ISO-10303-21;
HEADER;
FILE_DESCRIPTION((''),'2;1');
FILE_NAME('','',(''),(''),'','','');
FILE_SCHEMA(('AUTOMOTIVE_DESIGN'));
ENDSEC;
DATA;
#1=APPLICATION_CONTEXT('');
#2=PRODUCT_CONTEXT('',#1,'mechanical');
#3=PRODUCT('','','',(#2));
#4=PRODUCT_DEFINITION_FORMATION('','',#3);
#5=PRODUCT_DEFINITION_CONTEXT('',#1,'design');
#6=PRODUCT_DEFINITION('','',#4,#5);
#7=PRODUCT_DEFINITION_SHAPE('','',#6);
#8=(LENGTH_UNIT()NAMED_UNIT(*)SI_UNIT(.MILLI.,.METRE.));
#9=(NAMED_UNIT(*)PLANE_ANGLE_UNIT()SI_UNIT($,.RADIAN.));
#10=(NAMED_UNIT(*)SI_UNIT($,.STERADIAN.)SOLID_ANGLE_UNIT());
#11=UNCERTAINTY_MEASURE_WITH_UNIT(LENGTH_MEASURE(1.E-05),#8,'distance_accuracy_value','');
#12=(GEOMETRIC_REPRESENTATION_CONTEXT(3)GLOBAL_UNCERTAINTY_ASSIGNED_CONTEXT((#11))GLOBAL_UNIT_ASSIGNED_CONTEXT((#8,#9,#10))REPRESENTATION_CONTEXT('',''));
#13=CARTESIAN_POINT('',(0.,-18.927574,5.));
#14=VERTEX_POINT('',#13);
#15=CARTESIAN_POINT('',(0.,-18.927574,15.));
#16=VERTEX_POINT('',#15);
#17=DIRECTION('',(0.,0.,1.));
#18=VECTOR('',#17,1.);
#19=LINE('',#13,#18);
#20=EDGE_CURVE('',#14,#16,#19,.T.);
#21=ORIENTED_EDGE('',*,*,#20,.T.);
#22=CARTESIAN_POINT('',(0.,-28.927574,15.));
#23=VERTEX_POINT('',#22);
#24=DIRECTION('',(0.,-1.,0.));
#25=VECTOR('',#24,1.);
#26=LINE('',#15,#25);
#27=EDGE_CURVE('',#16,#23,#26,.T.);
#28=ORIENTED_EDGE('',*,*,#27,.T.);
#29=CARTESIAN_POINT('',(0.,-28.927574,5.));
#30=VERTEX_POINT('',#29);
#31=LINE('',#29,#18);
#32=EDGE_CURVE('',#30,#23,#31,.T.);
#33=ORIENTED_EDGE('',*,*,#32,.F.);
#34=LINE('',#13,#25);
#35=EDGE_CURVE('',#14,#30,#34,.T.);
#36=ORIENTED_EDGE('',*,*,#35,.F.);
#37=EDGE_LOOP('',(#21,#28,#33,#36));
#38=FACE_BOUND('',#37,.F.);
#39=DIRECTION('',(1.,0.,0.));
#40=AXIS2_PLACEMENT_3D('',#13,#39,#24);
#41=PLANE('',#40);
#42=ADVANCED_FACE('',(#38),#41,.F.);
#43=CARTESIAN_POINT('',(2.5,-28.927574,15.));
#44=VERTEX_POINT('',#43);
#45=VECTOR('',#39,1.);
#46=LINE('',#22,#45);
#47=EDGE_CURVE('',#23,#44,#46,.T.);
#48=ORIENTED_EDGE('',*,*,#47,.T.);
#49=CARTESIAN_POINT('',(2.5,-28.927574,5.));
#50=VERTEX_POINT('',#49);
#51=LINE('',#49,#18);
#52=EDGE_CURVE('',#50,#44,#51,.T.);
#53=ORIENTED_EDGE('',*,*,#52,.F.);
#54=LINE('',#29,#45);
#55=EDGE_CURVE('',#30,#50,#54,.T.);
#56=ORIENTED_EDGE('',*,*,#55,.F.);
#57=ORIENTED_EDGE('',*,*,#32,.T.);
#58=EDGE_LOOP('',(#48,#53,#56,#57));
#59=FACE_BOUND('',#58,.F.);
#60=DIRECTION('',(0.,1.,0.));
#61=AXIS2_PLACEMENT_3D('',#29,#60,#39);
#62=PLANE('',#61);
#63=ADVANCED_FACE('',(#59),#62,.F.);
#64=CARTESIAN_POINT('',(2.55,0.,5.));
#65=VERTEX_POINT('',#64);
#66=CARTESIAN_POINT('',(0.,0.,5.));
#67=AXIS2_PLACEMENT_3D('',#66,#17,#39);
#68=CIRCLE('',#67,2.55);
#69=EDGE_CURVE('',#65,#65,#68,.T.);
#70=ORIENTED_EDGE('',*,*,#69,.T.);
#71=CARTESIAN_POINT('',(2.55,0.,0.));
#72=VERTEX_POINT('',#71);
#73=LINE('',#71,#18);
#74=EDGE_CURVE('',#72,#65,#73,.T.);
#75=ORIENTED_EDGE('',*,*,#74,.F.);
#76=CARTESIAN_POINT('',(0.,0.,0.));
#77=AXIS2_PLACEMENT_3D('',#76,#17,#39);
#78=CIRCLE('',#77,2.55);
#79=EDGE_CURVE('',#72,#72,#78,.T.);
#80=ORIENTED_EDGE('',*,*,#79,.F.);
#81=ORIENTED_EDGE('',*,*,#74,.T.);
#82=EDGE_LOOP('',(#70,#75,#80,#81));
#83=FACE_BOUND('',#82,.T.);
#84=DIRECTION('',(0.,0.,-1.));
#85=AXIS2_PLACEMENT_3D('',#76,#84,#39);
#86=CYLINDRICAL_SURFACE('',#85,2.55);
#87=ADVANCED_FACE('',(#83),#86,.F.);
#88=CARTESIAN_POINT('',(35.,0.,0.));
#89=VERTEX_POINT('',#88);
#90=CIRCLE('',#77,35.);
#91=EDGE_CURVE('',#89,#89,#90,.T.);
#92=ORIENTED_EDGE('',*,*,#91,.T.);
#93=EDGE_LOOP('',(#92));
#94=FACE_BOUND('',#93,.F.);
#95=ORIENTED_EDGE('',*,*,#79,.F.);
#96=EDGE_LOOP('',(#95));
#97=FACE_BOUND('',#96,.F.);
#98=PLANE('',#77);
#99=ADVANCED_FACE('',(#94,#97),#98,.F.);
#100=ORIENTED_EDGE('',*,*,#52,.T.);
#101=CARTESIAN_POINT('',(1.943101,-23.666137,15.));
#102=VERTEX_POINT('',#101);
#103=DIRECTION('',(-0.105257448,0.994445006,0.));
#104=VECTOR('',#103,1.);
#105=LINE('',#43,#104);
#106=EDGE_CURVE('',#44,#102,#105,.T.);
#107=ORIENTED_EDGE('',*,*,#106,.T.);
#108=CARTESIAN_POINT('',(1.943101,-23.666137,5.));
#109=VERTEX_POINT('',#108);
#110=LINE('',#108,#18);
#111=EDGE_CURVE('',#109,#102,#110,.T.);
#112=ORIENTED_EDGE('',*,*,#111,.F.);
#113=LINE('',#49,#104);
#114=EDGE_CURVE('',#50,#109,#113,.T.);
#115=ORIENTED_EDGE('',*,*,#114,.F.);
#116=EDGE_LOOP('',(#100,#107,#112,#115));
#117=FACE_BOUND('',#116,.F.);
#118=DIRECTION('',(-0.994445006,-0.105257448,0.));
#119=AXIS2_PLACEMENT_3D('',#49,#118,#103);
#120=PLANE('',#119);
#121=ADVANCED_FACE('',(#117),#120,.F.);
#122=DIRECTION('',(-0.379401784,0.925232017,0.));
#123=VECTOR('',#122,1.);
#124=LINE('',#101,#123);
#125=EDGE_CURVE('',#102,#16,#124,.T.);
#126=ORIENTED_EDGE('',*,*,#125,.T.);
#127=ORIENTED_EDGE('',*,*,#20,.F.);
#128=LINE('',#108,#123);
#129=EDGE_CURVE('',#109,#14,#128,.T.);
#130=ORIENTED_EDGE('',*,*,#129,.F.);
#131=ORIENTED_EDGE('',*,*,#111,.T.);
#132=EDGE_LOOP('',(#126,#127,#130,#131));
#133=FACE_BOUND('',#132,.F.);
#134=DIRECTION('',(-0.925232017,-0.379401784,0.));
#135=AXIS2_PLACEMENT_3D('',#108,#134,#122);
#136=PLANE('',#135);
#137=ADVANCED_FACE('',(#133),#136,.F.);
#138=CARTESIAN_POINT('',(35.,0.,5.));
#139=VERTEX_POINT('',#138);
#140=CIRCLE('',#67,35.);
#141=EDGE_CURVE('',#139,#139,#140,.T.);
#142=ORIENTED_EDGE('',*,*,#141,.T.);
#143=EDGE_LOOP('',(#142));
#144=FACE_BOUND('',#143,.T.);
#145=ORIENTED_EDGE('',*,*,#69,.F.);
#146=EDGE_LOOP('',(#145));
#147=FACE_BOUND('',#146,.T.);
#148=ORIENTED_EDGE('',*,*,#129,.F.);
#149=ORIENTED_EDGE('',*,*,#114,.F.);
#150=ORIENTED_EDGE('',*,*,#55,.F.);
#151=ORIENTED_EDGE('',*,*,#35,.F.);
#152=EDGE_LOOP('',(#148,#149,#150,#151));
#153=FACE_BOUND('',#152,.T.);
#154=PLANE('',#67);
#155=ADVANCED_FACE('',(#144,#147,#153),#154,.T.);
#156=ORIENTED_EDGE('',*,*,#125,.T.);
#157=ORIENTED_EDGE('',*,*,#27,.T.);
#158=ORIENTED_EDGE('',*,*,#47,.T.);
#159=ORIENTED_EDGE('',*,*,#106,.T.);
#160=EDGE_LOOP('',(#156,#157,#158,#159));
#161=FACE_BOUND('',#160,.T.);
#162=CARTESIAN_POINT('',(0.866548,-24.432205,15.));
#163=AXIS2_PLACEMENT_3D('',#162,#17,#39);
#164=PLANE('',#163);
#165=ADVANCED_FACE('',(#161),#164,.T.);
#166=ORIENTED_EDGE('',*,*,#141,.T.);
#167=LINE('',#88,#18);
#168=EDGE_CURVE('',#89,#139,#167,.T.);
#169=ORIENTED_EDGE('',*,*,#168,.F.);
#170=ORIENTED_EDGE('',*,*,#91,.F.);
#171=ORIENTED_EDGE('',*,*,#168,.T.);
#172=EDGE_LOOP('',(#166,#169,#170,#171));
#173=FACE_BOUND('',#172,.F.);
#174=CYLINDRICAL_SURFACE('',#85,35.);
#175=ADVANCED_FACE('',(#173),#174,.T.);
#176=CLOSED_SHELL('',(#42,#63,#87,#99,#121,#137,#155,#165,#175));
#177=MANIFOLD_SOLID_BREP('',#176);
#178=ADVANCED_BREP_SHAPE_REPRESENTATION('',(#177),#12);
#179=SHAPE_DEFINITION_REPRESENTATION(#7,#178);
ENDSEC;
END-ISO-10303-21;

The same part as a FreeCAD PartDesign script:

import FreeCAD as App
import Part
import Sketcher
from FreeCAD import Vector


def add_polygon(sketch, points):
    """Adds a closed chain of lines whose ends are joined by coincident constraints."""
    first, n = sketch.GeometryCount, len(points)
    for a, b in zip(points, points[1:] + points[:1]):
        sketch.addGeometry(Part.LineSegment(App.Vector(*a, 0), App.Vector(*b, 0)), False)
    for i in range(n):
        sketch.addConstraint(Sketcher.Constraint("Coincident", first + i, 2, first + (i + 1) % n, 1))

doc = App.newDocument("Part")
body = doc.addObject("PartDesign::Body", "Body")

# Sketch on XY plane
sketch1 = body.newObject("Sketcher::SketchObject", "Sketch")
sketch1.AttachmentSupport = (doc.getObject("XY_Plane"), [""])
sketch1.MapMode = "FlatFace"
sketch1.addGeometry([
    Part.Circle(Vector(0, 0, 0), Vector(0, 0, 1), 35),
    Part.Circle(Vector(0, 0, 0), Vector(0, 0, 1), 2.5),
], False)
sketch1.addConstraint([
    Sketcher.Constraint("Coincident", 0, 3, -1, 1),
    Sketcher.Constraint("Coincident", 1, 3, -1, 1),
    Sketcher.Constraint("Diameter", 0, 70.0),
    Sketcher.Constraint("Diameter", 1, 5.1),
])
pad1 = body.newObject("PartDesign::Pad", "Pad")
pad1.Profile = sketch1
pad1.Length = 5

# Sketch on XY plane
sketch2 = body.newObject("Sketcher::SketchObject", "Sketch001")
sketch2.AttachmentSupport = (doc.getObject("XY_Plane"), [""])
sketch2.MapMode = "FlatFace"
sketch2.AttachmentOffset = App.Placement(Vector(0, 0, 5), App.Rotation())
add_polygon(sketch2, [(1.9, -23.7), (0, -18.9), (0, -28.9), (2.5, -28.9)])  # lines 0-3
sketch2.addConstraint([
    Sketcher.Constraint("Vertical", 1),
    Sketcher.Constraint("Horizontal", 2),
    Sketcher.Constraint("PointOnObject", 0, 2, -2),
    Sketcher.Constraint("DistanceY", 1, 2, 1, 1, 10.0),
    Sketcher.Constraint("DistanceX", 2, 1, 2, 2, 2.5),
    Sketcher.Constraint("DistanceX", -1, 1, 3, 2, 1.943101),
    Sketcher.Constraint("Distance", 0, 5.121486),
    Sketcher.Constraint("DistanceY", 0, 2, -1, 1, 18.927574),
])
pad2 = body.newObject("PartDesign::Pad", "Pad001")
pad2.Profile = sketch2
pad2.Length = 10

doc.recompute()
